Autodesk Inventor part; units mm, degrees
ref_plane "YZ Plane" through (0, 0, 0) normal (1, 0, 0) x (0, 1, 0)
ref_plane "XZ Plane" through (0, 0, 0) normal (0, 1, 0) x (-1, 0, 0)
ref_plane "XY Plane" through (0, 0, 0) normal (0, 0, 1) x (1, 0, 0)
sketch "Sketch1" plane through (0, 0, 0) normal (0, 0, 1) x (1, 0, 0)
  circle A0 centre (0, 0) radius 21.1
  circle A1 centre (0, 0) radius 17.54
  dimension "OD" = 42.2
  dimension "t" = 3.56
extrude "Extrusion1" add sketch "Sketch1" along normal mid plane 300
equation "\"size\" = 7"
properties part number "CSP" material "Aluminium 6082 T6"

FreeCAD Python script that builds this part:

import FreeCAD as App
import Part
import Sketcher
from FreeCAD import Vector
Q = App.Units.Quantity

doc = App.newDocument("Part")
body = doc.addObject("PartDesign::Body", "Body")

# Sketch on XY plane
sketch1 = doc.addObject("Sketcher::SketchObject", "Sketch")
body.addObject(sketch1)
sketch1.AttachmentSupport = (doc.XY_Plane, [""])
sketch1.MapMode = "FlatFace"
sketch1.addGeometry([
    Part.Circle(Vector(0, 0, 0), Vector(0, 0, 1), 21.1),
    Part.Circle(Vector(0, 0, 0), Vector(0, 0, 1), 17.54),
], False)
sketch1.addConstraint([
    Sketcher.Constraint("Coincident", 0, 3, -1, 1),
    Sketcher.Constraint("Coincident", 1, 3, -1, 1),
    Sketcher.Constraint("Diameter", 0, Q("42.2 mm")),
    Sketcher.Constraint("Diameter", 1, Q("35.08 mm")),
])
pad1 = doc.addObject("PartDesign::Pad", "Pad")
body.addObject(pad1)
pad1.Profile = sketch1
pad1.Length = 300
pad1.Midplane = True

doc.recompute()
